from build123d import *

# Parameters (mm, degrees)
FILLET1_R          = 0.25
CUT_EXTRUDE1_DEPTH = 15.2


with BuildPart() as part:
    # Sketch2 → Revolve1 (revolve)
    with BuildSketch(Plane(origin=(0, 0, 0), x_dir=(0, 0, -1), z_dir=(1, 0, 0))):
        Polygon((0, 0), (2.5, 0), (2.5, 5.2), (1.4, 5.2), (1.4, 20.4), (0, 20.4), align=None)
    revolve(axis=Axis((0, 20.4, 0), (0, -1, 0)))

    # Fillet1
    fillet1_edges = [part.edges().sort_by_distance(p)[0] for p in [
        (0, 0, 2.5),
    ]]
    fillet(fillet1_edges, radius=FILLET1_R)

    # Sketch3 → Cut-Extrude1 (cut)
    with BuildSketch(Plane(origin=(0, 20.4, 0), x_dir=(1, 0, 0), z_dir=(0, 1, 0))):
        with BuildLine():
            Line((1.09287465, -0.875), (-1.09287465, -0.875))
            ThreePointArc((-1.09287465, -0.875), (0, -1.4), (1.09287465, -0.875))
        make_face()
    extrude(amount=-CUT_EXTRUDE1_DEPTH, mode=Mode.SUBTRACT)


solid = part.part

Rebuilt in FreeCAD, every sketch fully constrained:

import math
import FreeCAD as App
import Part
import Sketcher

V = App.Vector
Q = App.Units.Quantity


def edges_at(feature, points):
    """Names of the edges that pass closest to the given points."""
    edges = feature.Shape.Edges
    near = lambda p: min(range(len(edges)), key=lambda i: edges[i].distToShape(Part.Vertex(*p))[0])
    return sorted({f"Edge{near(p) + 1}" for p in points})

doc = App.newDocument("Part")
body = doc.addObject("PartDesign::Body", "Body")

sketch1 = body.newObject("Sketcher::SketchObject", "Sketch")
sketch1.AttachmentSupport = (doc.getObject("YZ_Plane"), [""])
sketch1.MapMode = "FlatFace"
sketch1.addGeometry([
    Part.LineSegment(V(0, 0, 0), V(0, -2.5, 0)),
    Part.LineSegment(V(0, -2.5, 0), V(5.2, -2.5, 0)),
    Part.LineSegment(V(5.2, -2.5, 0), V(5.2, -1.4, 0)),
    Part.LineSegment(V(5.2, -1.4, 0), V(20.4, -1.4, 0)),
    Part.LineSegment(V(20.4, -1.4, 0), V(20.4, 0, 0)),
    Part.LineSegment(V(20.4, 0, 0), V(0, 0, 0)),
], False)
sketch1.addConstraint([
    Sketcher.Constraint("Coincident", 0, 2, 1, 1),
    Sketcher.Constraint("Coincident", 1, 2, 2, 1),
    Sketcher.Constraint("Coincident", 2, 2, 3, 1),
    Sketcher.Constraint("Coincident", 3, 2, 4, 1),
    Sketcher.Constraint("Coincident", 4, 2, 5, 1),
    Sketcher.Constraint("Coincident", 5, 2, 0, 1),
    Sketcher.Constraint("Vertical", 0),
    Sketcher.Constraint("Horizontal", 1),
    Sketcher.Constraint("Vertical", 2),
    Sketcher.Constraint("Horizontal", 3),
    Sketcher.Constraint("Vertical", 4),
    Sketcher.Constraint("Horizontal", 5),
    Sketcher.Constraint("Coincident", 5, 2, -1, 1),
    Sketcher.Constraint("DistanceX", 1, 1, 1, 2, Q("5.2 mm")),
    Sketcher.Constraint("DistanceX", 3, 1, 3, 2, Q("15.2 mm")),
    Sketcher.Constraint("DistanceY", 0, 2, 0, 1, Q("2.5 mm")),
    Sketcher.Constraint("DistanceY", 2, 1, 2, 2, Q("1.1 mm")),
])
revolution = body.newObject("PartDesign::Revolution", "Revolution")
revolution.Profile = sketch1
revolution.ReferenceAxis = (sketch1, ["H_Axis"])
revolution.Angle = 360
doc.recompute()

fillet = body.newObject("PartDesign::Fillet", "Fillet")
fillet.Base = (revolution, edges_at(revolution, [(0, 0, 2.5)]))
fillet.Radius = 0.25

sketch2 = body.newObject("Sketcher::SketchObject", "Sketch001")
sketch2.AttachmentSupport = (doc.getObject("XZ_Plane"), [""])
sketch2.MapMode = "FlatFace"
sketch2.AttachmentOffset = App.Placement(V(0, 0, -20.4), App.Rotation())
sketch2.addGeometry([
    Part.LineSegment(V(1.1, 0.9, 0), V(-1.1, 0.9, 0)),
    Part.ArcOfCircle(Part.Circle(V(0, 0, 0), V(0, 0, 1), 1.4), math.radians(39), math.radians(141)),
], False)
sketch2.addConstraint([
    Sketcher.Constraint("Coincident", 0, 1, 1, 1),
    Sketcher.Constraint("Coincident", 1, 2, 0, 2),
    Sketcher.Constraint("Horizontal", 0),
    Sketcher.Constraint("Coincident", 1, 3, -1, 1),
    Sketcher.Constraint("Radius", 1, Q("1.4 mm")),
    Sketcher.Constraint("DistanceY", -1, 1, 0, 1, Q("0.875 mm")),
])
pocket1 = body.newObject("PartDesign::Pocket", "Pocket")
pocket1.Profile = sketch2
pocket1.Length = 15.2
pocket1.Reversed = True

doc.recompute()
